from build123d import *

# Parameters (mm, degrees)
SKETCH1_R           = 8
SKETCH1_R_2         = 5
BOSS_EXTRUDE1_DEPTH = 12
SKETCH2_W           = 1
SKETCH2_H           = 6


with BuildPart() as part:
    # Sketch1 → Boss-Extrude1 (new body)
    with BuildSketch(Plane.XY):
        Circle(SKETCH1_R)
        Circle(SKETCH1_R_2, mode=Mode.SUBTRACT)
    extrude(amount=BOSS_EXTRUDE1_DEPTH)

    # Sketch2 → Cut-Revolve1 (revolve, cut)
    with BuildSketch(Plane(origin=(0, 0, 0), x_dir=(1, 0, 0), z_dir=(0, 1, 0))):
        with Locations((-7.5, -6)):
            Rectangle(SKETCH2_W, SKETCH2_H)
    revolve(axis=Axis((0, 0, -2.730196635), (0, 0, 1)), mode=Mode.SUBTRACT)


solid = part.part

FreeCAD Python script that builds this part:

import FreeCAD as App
import Part
import Sketcher

V = App.Vector

doc = App.newDocument("Part")
body = doc.addObject("PartDesign::Body", "Body")

# Sketch on XY plane
sketch1 = doc.addObject("Sketcher::SketchObject", "Sketch")
body.addObject(sketch1)
sketch1.AttachmentSupport = (doc.XY_Plane, [""])
sketch1.MapMode = "FlatFace"
sketch1.addGeometry([
    Part.Circle(V(0, 0, 0), V(0, 0, 1), 8),
    Part.Circle(V(0, 0, 0), V(0, 0, 1), 5),
], False)
sketch1.addConstraint([
    Sketcher.Constraint("Coincident", 0, 3, -1, 1),
    Sketcher.Constraint("Coincident", 1, 3, -1, 1),
    Sketcher.Constraint("Diameter", 0, 16.0),
    Sketcher.Constraint("Diameter", 1, 10.0),
])
pad1 = doc.addObject("PartDesign::Pad", "Pad")
body.addObject(pad1)
pad1.Profile = sketch1
pad1.Length = 12

# Sketch on XZ plane
sketch2 = doc.addObject("Sketcher::SketchObject", "Sketch001")
body.addObject(sketch2)
sketch2.AttachmentSupport = (doc.XZ_Plane, [""])
sketch2.MapMode = "FlatFace"
sketch2.addGeometry([
    Part.LineSegment(V(-8, 3, 0), V(-8, 9, 0)),
    Part.LineSegment(V(-8, 9, 0), V(-7, 9, 0)),
    Part.LineSegment(V(-7, 9, 0), V(-7, 3, 0)),
    Part.LineSegment(V(-7, 3, 0), V(-8, 3, 0)),
], False)
sketch2.addConstraint([
    Sketcher.Constraint("Coincident", 0, 2, 1, 1),
    Sketcher.Constraint("Coincident", 1, 2, 2, 1),
    Sketcher.Constraint("Coincident", 2, 2, 3, 1),
    Sketcher.Constraint("Coincident", 3, 2, 0, 1),
    Sketcher.Constraint("Vertical", 0),
    Sketcher.Constraint("Horizontal", 1),
    Sketcher.Constraint("Vertical", 2),
    Sketcher.Constraint("Horizontal", 3),
    Sketcher.Constraint("DistanceX", 1, 1, 1, 2, 1.0),
    Sketcher.Constraint("DistanceY", 0, 1, 0, 2, 6.0),
    Sketcher.Constraint("DistanceX", 0, 2, -1, 1, 8.0),
    Sketcher.Constraint("DistanceY", -1, 1, 0, 2, 9.0),
])
groove = doc.addObject("PartDesign::Groove", "Groove")
body.addObject(groove)
groove.Profile = sketch2
groove.ReferenceAxis = (sketch2, ["V_Axis"])
groove.Angle = 360

doc.recompute()
